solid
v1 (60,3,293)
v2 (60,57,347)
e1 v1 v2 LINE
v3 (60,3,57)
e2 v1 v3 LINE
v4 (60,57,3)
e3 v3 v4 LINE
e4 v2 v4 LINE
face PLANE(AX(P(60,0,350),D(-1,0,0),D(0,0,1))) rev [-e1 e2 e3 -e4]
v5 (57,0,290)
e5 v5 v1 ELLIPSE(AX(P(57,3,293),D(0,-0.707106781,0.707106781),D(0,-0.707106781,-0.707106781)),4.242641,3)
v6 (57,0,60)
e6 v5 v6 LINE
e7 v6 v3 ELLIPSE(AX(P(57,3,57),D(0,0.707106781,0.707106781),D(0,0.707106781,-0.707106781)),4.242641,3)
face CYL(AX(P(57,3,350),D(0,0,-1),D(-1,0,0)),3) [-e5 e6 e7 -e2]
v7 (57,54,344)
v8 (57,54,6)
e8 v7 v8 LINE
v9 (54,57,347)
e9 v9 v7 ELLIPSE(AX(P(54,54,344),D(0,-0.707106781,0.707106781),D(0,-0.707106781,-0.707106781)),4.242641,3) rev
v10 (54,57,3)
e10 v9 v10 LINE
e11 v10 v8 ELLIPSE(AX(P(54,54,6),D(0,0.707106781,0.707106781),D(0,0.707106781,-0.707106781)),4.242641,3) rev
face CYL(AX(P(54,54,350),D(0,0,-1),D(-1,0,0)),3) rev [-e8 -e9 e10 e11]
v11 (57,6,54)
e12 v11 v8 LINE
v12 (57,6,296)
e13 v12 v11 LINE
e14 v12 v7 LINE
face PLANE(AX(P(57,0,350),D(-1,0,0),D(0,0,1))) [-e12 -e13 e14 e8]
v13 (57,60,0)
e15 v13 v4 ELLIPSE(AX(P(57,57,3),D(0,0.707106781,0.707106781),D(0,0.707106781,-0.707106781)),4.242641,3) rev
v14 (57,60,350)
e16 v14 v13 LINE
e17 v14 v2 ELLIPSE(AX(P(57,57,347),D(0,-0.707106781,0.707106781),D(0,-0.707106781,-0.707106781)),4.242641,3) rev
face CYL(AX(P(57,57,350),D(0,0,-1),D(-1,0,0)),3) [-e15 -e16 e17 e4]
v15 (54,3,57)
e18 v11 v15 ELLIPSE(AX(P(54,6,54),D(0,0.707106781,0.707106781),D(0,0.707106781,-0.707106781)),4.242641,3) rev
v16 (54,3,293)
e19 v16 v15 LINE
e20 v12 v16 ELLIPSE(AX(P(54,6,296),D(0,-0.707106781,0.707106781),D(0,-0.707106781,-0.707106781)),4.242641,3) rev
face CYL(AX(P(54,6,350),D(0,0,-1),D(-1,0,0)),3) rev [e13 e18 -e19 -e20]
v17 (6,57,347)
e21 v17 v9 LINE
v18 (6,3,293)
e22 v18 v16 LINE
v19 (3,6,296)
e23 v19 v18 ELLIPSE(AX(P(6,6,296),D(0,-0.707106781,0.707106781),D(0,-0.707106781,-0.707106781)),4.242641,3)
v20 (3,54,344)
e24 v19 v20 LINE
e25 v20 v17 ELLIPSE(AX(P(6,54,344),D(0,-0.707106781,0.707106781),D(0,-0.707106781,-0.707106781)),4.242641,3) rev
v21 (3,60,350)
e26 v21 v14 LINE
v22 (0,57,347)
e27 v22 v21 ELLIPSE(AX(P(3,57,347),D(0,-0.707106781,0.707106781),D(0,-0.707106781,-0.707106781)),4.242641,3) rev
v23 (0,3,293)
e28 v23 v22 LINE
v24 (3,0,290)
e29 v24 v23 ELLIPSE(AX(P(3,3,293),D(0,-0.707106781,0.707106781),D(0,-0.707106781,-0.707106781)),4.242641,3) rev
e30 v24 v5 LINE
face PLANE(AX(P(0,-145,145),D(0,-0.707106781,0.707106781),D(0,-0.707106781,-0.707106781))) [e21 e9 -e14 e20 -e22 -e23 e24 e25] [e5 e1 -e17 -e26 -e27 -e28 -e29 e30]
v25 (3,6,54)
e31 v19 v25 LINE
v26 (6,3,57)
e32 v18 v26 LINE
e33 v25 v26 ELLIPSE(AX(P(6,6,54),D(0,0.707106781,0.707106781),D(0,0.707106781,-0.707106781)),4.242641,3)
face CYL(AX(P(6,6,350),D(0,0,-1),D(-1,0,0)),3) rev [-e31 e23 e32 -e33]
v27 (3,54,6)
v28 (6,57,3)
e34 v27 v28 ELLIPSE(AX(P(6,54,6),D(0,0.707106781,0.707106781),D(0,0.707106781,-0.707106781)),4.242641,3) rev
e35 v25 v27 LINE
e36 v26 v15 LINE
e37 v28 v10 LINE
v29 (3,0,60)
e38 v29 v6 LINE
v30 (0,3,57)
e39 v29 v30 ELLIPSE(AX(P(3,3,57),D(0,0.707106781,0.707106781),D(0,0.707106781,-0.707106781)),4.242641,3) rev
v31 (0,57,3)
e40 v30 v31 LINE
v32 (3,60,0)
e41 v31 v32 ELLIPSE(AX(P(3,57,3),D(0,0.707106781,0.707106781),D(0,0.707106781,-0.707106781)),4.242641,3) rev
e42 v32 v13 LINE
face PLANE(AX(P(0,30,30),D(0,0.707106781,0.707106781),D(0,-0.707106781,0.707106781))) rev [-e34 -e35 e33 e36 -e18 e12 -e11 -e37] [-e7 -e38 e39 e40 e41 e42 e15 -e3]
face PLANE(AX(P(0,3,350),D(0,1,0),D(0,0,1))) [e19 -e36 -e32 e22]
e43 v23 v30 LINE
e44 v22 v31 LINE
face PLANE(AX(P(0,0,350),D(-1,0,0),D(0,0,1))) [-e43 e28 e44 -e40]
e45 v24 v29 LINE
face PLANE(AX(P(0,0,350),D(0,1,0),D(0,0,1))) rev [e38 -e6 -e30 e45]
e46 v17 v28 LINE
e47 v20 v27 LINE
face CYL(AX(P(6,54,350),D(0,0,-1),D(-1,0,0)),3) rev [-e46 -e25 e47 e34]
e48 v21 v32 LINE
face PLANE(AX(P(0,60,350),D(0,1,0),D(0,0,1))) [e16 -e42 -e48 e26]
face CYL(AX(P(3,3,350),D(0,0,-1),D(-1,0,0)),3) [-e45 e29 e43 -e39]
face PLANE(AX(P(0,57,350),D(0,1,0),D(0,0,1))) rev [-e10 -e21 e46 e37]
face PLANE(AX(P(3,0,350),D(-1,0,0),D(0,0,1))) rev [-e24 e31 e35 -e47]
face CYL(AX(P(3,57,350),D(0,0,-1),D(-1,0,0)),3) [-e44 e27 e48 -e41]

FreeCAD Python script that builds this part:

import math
import FreeCAD as App
import Part
import Sketcher

V = App.Vector
Q = App.Units.Quantity

doc = App.newDocument("Part")
body = doc.addObject("PartDesign::Body", "Body")

# Sketch on XY plane
sketch1 = body.newObject("Sketcher::SketchObject", "Sketch")
sketch1.AttachmentSupport = (doc.getObject("XY_Plane"), [""])
sketch1.MapMode = "FlatFace"
sketch1.addGeometry([
    Part.ArcOfCircle(Part.Circle(V(3, 57, 0), V(0, 0, 1), 3), math.radians(90), math.radians(180)),  # 0
    Part.LineSegment(V(0, 57, 0), V(0, 3, 0)),  # 1
    Part.ArcOfCircle(Part.Circle(V(3, 3, 0), V(0, 0, 1), 3), math.radians(180), math.radians(270)),  # 2
    Part.LineSegment(V(3, 0, 0), V(57, 0, 0)),  # 3
    Part.ArcOfCircle(Part.Circle(V(57, 3, 0), V(0, 0, 1), 3), math.radians(-90), math.radians(0)),  # 4
    Part.LineSegment(V(60, 3, 0), V(60, 57, 0)),  # 5
    Part.ArcOfCircle(Part.Circle(V(57, 57, 0), V(0, 0, 1), 3), math.radians(0), math.radians(90)),  # 6
    Part.LineSegment(V(57, 60, 0), V(3, 60, 0)),  # 7
    Part.LineSegment(V(3, 6, 0), V(3, 54, 0)),  # 8
    Part.ArcOfCircle(Part.Circle(V(6, 54, 0), V(0, 0, 1), 3), math.radians(90), math.radians(180)),  # 9
    Part.LineSegment(V(6, 57, 0), V(54, 57, 0)),  # 10
    Part.ArcOfCircle(Part.Circle(V(54, 54, 0), V(0, 0, 1), 3), math.radians(0), math.radians(90)),  # 11
    Part.LineSegment(V(57, 54, 0), V(57, 6, 0)),  # 12
    Part.ArcOfCircle(Part.Circle(V(54, 6, 0), V(0, 0, 1), 3), math.radians(-90), math.radians(0)),  # 13
    Part.LineSegment(V(54, 3, 0), V(6, 3, 0)),  # 14
    Part.ArcOfCircle(Part.Circle(V(6, 6, 0), V(0, 0, 1), 3), math.radians(180), math.radians(270)),  # 15
], False)
sketch1.addConstraint([
    Sketcher.Constraint("Tangent", 0, 2, 1, 1),
    Sketcher.Constraint("Tangent", 1, 2, 2, 1),
    Sketcher.Constraint("Tangent", 2, 2, 3, 1),
    Sketcher.Constraint("Tangent", 3, 2, 4, 1),
    Sketcher.Constraint("Tangent", 4, 2, 5, 1),
    Sketcher.Constraint("Tangent", 5, 2, 6, 1),
    Sketcher.Constraint("Tangent", 6, 2, 7, 1),
    Sketcher.Constraint("Tangent", 7, 2, 0, 1),
    Sketcher.Constraint("Tangent", 8, 2, 9, 2),
    Sketcher.Constraint("Tangent", 9, 1, 10, 1),
    Sketcher.Constraint("Tangent", 10, 2, 11, 2),
    Sketcher.Constraint("Tangent", 11, 1, 12, 1),
    Sketcher.Constraint("Tangent", 12, 2, 13, 2),
    Sketcher.Constraint("Tangent", 13, 1, 14, 1),
    Sketcher.Constraint("Tangent", 14, 2, 15, 2),
    Sketcher.Constraint("Tangent", 15, 1, 8, 1),
    Sketcher.Constraint("Vertical", 1),
    Sketcher.Constraint("Horizontal", 3),
    Sketcher.Constraint("Vertical", 5),
    Sketcher.Constraint("Horizontal", 7),
    Sketcher.Constraint("Vertical", 8),
    Sketcher.Constraint("Horizontal", 10),
    Sketcher.Constraint("Vertical", 12),
    Sketcher.Constraint("Horizontal", 14),
    Sketcher.Constraint("Equal", 0, 2),
    Sketcher.Constraint("Equal", 2, 4),
    Sketcher.Constraint("Equal", 4, 6),
    Sketcher.Constraint("Equal", 6, 9),
    Sketcher.Constraint("Equal", 9, 11),
    Sketcher.Constraint("Equal", 11, 13),
    Sketcher.Constraint("Equal", 13, 15),
    Sketcher.Constraint("PointOnObject", 0, 2, -2),
    Sketcher.Constraint("PointOnObject", 2, 2, -1),
    Sketcher.Constraint("Horizontal", 5, 2, 9, 1),
    Sketcher.Constraint("Horizontal", 4, 2, 13, 1),
    Sketcher.Constraint("Vertical", 7, 2, 8, 2),
    Sketcher.Constraint("Vertical", 6, 2, 11, 1),
    Sketcher.Constraint("Equal", 7, 1),
    Sketcher.Constraint("Radius", 0, Q("3 mm")),
    Sketcher.Constraint("DistanceX", 3, 1, 3, 2, Q("54 mm")),
])
pad1 = body.newObject("PartDesign::Pad", "Pad")
pad1.Profile = sketch1
pad1.Length = 350

# Sketch on an angled plane
sketch2 = body.newObject("Sketcher::SketchObject", "Sketch001")
sketch2.Placement = App.Placement(V(0, -145, 145), App.Rotation(V(1, 0, 0), V(0, 0.707106781, 0.707106781), V(0, -0.707106781, 0.707106781), "ZXY"))
sketch2.addGeometry([
    Part.LineSegment(V(-30, 318, 0), V(-30, 189, 0)),
    Part.LineSegment(V(-30, 189, 0), V(110, 189, 0)),
    Part.LineSegment(V(110, 189, 0), V(110, 318, 0)),
    Part.LineSegment(V(110, 318, 0), V(-30, 318, 0)),
], False)
sketch2.addConstraint([
    Sketcher.Constraint("Coincident", 0, 2, 1, 1),
    Sketcher.Constraint("Coincident", 1, 2, 2, 1),
    Sketcher.Constraint("Coincident", 2, 2, 3, 1),
    Sketcher.Constraint("Coincident", 3, 2, 0, 1),
    Sketcher.Constraint("Vertical", 0),
    Sketcher.Constraint("Horizontal", 1),
    Sketcher.Constraint("Vertical", 2),
    Sketcher.Constraint("Horizontal", 3),
    Sketcher.Constraint("DistanceY", 0, 2, 0, 1, Q("128.958799 mm")),
    Sketcher.Constraint("DistanceX", 1, 1, 1, 2, Q("140.103855 mm")),
    Sketcher.Constraint("DistanceY", -1, 1, 2, 2, Q("317.945131 mm")),
    Sketcher.Constraint("DistanceX", 0, 2, -1, 1, Q("30.401193 mm")),
])
pocket1 = body.newObject("PartDesign::Pocket", "Pocket")
pocket1.Profile = sketch2
pocket1.Type = "ThroughAll"
pocket1.Reversed = True

# Sketch on an angled plane
sketch3 = body.newObject("Sketcher::SketchObject", "Sketch002")
sketch3.Placement = App.Placement(V(0, 30, 30), App.Rotation(V(1, 0, 0), V(0, -0.707106781, 0.707106781), V(0, -0.707106781, -0.707106781), "ZXY"))
sketch3.addGeometry([
    Part.LineSegment(V(-63, 64, 0), V(-63, -75, 0)),
    Part.LineSegment(V(-63, -75, 0), V(117, -75, 0)),
    Part.LineSegment(V(117, -75, 0), V(117, 64, 0)),
    Part.LineSegment(V(117, 64, 0), V(-63, 64, 0)),
], False)
sketch3.addConstraint([
    Sketcher.Constraint("Coincident", 0, 2, 1, 1),
    Sketcher.Constraint("Coincident", 1, 2, 2, 1),
    Sketcher.Constraint("Coincident", 2, 2, 3, 1),
    Sketcher.Constraint("Coincident", 3, 2, 0, 1),
    Sketcher.Constraint("Vertical", 0),
    Sketcher.Constraint("Horizontal", 1),
    Sketcher.Constraint("Vertical", 2),
    Sketcher.Constraint("Horizontal", 3),
    Sketcher.Constraint("DistanceX", 1, 1, 1, 2, Q("180.281072 mm")),
    Sketcher.Constraint("DistanceY", 0, 2, 0, 1, Q("138.969007 mm")),
    Sketcher.Constraint("DistanceX", -1, 1, 1, 2, Q("117.234938 mm")),
    Sketcher.Constraint("DistanceY", 0, 2, -1, 1, Q("75.107983 mm")),
])
pocket2 = body.newObject("PartDesign::Pocket", "Pocket001")
pocket2.Profile = sketch3
pocket2.Type = "ThroughAll"
pocket2.Reversed = True

doc.recompute()
